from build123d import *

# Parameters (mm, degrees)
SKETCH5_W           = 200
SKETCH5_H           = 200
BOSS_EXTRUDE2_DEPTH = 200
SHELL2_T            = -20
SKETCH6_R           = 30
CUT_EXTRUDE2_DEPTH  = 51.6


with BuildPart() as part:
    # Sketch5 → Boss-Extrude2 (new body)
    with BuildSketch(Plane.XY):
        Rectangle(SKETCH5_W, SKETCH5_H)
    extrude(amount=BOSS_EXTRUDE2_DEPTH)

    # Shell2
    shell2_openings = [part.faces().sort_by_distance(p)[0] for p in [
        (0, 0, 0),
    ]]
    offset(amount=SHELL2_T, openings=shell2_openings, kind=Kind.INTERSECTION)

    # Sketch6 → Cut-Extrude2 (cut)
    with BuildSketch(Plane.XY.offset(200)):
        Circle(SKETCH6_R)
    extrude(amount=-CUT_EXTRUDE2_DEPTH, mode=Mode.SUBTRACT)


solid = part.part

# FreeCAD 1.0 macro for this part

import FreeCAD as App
import Part
import Sketcher
from FreeCAD import Vector
Q = App.Units.Quantity


def faces_at(feature, points):
    """Names of the faces that lie closest to the given points."""
    faces = feature.Shape.Faces
    near = lambda p: min(range(len(faces)), key=lambda i: faces[i].distToShape(Part.Vertex(*p))[0])
    return sorted({f"Face{near(p) + 1}" for p in points})


def add_polygon(sketch, points):
    """Adds a closed chain of lines whose ends are joined by coincident constraints."""
    first, n = sketch.GeometryCount, len(points)
    for a, b in zip(points, points[1:] + points[:1]):
        sketch.addGeometry(Part.LineSegment(App.Vector(*a, 0), App.Vector(*b, 0)), False)
    for i in range(n):
        sketch.addConstraint(Sketcher.Constraint("Coincident", first + i, 2, first + (i + 1) % n, 1))

doc = App.newDocument("Part")
body = doc.addObject("PartDesign::Body", "Body")

# Sketch on XY plane
sketch1 = body.newObject("Sketcher::SketchObject", "Sketch")
sketch1.AttachmentSupport = (doc.getObject("XY_Plane"), [""])
sketch1.MapMode = "FlatFace"
add_polygon(sketch1, [(-100, 100), (-100, -100), (100, -100), (100, 100)])  # lines 0-3
sketch1.addConstraint([
    Sketcher.Constraint("Vertical", 0),
    Sketcher.Constraint("Horizontal", 1),
    Sketcher.Constraint("Vertical", 2),
    Sketcher.Constraint("Horizontal", 3),
    Sketcher.Constraint("Symmetric", 0, 2, 2, 2, -1, 1),
    Sketcher.Constraint("Equal", 3, 0),
    Sketcher.Constraint("DistanceX", 1, 1, 1, 2, Q("200 mm")),
])
pad1 = body.newObject("PartDesign::Pad", "Pad")
pad1.Profile = sketch1
pad1.Length = 200
doc.recompute()

thickness = body.newObject("PartDesign::Thickness", "Thickness")
thickness.Base = (pad1, faces_at(pad1, [(0, 0, 0)]))
thickness.Value = 20
thickness.Reversed = True
thickness.Join = "Intersection"

# Sketch on XY plane
sketch2 = body.newObject("Sketcher::SketchObject", "Sketch001")
sketch2.AttachmentSupport = (doc.getObject("XY_Plane"), [""])
sketch2.MapMode = "FlatFace"
sketch2.AttachmentOffset = App.Placement(Vector(0, 0, 200), App.Rotation())
sketch2.addGeometry(Part.Circle(Vector(0, 0, 0), Vector(0, 0, 1), 30), False)
sketch2.addConstraint([
    Sketcher.Constraint("Coincident", 0, 3, -1, 1),
    Sketcher.Constraint("Diameter", 0, Q("60 mm")),
])
pocket1 = body.newObject("PartDesign::Pocket", "Pocket")
pocket1.Profile = sketch2
pocket1.Length = 51.6

doc.recompute()
